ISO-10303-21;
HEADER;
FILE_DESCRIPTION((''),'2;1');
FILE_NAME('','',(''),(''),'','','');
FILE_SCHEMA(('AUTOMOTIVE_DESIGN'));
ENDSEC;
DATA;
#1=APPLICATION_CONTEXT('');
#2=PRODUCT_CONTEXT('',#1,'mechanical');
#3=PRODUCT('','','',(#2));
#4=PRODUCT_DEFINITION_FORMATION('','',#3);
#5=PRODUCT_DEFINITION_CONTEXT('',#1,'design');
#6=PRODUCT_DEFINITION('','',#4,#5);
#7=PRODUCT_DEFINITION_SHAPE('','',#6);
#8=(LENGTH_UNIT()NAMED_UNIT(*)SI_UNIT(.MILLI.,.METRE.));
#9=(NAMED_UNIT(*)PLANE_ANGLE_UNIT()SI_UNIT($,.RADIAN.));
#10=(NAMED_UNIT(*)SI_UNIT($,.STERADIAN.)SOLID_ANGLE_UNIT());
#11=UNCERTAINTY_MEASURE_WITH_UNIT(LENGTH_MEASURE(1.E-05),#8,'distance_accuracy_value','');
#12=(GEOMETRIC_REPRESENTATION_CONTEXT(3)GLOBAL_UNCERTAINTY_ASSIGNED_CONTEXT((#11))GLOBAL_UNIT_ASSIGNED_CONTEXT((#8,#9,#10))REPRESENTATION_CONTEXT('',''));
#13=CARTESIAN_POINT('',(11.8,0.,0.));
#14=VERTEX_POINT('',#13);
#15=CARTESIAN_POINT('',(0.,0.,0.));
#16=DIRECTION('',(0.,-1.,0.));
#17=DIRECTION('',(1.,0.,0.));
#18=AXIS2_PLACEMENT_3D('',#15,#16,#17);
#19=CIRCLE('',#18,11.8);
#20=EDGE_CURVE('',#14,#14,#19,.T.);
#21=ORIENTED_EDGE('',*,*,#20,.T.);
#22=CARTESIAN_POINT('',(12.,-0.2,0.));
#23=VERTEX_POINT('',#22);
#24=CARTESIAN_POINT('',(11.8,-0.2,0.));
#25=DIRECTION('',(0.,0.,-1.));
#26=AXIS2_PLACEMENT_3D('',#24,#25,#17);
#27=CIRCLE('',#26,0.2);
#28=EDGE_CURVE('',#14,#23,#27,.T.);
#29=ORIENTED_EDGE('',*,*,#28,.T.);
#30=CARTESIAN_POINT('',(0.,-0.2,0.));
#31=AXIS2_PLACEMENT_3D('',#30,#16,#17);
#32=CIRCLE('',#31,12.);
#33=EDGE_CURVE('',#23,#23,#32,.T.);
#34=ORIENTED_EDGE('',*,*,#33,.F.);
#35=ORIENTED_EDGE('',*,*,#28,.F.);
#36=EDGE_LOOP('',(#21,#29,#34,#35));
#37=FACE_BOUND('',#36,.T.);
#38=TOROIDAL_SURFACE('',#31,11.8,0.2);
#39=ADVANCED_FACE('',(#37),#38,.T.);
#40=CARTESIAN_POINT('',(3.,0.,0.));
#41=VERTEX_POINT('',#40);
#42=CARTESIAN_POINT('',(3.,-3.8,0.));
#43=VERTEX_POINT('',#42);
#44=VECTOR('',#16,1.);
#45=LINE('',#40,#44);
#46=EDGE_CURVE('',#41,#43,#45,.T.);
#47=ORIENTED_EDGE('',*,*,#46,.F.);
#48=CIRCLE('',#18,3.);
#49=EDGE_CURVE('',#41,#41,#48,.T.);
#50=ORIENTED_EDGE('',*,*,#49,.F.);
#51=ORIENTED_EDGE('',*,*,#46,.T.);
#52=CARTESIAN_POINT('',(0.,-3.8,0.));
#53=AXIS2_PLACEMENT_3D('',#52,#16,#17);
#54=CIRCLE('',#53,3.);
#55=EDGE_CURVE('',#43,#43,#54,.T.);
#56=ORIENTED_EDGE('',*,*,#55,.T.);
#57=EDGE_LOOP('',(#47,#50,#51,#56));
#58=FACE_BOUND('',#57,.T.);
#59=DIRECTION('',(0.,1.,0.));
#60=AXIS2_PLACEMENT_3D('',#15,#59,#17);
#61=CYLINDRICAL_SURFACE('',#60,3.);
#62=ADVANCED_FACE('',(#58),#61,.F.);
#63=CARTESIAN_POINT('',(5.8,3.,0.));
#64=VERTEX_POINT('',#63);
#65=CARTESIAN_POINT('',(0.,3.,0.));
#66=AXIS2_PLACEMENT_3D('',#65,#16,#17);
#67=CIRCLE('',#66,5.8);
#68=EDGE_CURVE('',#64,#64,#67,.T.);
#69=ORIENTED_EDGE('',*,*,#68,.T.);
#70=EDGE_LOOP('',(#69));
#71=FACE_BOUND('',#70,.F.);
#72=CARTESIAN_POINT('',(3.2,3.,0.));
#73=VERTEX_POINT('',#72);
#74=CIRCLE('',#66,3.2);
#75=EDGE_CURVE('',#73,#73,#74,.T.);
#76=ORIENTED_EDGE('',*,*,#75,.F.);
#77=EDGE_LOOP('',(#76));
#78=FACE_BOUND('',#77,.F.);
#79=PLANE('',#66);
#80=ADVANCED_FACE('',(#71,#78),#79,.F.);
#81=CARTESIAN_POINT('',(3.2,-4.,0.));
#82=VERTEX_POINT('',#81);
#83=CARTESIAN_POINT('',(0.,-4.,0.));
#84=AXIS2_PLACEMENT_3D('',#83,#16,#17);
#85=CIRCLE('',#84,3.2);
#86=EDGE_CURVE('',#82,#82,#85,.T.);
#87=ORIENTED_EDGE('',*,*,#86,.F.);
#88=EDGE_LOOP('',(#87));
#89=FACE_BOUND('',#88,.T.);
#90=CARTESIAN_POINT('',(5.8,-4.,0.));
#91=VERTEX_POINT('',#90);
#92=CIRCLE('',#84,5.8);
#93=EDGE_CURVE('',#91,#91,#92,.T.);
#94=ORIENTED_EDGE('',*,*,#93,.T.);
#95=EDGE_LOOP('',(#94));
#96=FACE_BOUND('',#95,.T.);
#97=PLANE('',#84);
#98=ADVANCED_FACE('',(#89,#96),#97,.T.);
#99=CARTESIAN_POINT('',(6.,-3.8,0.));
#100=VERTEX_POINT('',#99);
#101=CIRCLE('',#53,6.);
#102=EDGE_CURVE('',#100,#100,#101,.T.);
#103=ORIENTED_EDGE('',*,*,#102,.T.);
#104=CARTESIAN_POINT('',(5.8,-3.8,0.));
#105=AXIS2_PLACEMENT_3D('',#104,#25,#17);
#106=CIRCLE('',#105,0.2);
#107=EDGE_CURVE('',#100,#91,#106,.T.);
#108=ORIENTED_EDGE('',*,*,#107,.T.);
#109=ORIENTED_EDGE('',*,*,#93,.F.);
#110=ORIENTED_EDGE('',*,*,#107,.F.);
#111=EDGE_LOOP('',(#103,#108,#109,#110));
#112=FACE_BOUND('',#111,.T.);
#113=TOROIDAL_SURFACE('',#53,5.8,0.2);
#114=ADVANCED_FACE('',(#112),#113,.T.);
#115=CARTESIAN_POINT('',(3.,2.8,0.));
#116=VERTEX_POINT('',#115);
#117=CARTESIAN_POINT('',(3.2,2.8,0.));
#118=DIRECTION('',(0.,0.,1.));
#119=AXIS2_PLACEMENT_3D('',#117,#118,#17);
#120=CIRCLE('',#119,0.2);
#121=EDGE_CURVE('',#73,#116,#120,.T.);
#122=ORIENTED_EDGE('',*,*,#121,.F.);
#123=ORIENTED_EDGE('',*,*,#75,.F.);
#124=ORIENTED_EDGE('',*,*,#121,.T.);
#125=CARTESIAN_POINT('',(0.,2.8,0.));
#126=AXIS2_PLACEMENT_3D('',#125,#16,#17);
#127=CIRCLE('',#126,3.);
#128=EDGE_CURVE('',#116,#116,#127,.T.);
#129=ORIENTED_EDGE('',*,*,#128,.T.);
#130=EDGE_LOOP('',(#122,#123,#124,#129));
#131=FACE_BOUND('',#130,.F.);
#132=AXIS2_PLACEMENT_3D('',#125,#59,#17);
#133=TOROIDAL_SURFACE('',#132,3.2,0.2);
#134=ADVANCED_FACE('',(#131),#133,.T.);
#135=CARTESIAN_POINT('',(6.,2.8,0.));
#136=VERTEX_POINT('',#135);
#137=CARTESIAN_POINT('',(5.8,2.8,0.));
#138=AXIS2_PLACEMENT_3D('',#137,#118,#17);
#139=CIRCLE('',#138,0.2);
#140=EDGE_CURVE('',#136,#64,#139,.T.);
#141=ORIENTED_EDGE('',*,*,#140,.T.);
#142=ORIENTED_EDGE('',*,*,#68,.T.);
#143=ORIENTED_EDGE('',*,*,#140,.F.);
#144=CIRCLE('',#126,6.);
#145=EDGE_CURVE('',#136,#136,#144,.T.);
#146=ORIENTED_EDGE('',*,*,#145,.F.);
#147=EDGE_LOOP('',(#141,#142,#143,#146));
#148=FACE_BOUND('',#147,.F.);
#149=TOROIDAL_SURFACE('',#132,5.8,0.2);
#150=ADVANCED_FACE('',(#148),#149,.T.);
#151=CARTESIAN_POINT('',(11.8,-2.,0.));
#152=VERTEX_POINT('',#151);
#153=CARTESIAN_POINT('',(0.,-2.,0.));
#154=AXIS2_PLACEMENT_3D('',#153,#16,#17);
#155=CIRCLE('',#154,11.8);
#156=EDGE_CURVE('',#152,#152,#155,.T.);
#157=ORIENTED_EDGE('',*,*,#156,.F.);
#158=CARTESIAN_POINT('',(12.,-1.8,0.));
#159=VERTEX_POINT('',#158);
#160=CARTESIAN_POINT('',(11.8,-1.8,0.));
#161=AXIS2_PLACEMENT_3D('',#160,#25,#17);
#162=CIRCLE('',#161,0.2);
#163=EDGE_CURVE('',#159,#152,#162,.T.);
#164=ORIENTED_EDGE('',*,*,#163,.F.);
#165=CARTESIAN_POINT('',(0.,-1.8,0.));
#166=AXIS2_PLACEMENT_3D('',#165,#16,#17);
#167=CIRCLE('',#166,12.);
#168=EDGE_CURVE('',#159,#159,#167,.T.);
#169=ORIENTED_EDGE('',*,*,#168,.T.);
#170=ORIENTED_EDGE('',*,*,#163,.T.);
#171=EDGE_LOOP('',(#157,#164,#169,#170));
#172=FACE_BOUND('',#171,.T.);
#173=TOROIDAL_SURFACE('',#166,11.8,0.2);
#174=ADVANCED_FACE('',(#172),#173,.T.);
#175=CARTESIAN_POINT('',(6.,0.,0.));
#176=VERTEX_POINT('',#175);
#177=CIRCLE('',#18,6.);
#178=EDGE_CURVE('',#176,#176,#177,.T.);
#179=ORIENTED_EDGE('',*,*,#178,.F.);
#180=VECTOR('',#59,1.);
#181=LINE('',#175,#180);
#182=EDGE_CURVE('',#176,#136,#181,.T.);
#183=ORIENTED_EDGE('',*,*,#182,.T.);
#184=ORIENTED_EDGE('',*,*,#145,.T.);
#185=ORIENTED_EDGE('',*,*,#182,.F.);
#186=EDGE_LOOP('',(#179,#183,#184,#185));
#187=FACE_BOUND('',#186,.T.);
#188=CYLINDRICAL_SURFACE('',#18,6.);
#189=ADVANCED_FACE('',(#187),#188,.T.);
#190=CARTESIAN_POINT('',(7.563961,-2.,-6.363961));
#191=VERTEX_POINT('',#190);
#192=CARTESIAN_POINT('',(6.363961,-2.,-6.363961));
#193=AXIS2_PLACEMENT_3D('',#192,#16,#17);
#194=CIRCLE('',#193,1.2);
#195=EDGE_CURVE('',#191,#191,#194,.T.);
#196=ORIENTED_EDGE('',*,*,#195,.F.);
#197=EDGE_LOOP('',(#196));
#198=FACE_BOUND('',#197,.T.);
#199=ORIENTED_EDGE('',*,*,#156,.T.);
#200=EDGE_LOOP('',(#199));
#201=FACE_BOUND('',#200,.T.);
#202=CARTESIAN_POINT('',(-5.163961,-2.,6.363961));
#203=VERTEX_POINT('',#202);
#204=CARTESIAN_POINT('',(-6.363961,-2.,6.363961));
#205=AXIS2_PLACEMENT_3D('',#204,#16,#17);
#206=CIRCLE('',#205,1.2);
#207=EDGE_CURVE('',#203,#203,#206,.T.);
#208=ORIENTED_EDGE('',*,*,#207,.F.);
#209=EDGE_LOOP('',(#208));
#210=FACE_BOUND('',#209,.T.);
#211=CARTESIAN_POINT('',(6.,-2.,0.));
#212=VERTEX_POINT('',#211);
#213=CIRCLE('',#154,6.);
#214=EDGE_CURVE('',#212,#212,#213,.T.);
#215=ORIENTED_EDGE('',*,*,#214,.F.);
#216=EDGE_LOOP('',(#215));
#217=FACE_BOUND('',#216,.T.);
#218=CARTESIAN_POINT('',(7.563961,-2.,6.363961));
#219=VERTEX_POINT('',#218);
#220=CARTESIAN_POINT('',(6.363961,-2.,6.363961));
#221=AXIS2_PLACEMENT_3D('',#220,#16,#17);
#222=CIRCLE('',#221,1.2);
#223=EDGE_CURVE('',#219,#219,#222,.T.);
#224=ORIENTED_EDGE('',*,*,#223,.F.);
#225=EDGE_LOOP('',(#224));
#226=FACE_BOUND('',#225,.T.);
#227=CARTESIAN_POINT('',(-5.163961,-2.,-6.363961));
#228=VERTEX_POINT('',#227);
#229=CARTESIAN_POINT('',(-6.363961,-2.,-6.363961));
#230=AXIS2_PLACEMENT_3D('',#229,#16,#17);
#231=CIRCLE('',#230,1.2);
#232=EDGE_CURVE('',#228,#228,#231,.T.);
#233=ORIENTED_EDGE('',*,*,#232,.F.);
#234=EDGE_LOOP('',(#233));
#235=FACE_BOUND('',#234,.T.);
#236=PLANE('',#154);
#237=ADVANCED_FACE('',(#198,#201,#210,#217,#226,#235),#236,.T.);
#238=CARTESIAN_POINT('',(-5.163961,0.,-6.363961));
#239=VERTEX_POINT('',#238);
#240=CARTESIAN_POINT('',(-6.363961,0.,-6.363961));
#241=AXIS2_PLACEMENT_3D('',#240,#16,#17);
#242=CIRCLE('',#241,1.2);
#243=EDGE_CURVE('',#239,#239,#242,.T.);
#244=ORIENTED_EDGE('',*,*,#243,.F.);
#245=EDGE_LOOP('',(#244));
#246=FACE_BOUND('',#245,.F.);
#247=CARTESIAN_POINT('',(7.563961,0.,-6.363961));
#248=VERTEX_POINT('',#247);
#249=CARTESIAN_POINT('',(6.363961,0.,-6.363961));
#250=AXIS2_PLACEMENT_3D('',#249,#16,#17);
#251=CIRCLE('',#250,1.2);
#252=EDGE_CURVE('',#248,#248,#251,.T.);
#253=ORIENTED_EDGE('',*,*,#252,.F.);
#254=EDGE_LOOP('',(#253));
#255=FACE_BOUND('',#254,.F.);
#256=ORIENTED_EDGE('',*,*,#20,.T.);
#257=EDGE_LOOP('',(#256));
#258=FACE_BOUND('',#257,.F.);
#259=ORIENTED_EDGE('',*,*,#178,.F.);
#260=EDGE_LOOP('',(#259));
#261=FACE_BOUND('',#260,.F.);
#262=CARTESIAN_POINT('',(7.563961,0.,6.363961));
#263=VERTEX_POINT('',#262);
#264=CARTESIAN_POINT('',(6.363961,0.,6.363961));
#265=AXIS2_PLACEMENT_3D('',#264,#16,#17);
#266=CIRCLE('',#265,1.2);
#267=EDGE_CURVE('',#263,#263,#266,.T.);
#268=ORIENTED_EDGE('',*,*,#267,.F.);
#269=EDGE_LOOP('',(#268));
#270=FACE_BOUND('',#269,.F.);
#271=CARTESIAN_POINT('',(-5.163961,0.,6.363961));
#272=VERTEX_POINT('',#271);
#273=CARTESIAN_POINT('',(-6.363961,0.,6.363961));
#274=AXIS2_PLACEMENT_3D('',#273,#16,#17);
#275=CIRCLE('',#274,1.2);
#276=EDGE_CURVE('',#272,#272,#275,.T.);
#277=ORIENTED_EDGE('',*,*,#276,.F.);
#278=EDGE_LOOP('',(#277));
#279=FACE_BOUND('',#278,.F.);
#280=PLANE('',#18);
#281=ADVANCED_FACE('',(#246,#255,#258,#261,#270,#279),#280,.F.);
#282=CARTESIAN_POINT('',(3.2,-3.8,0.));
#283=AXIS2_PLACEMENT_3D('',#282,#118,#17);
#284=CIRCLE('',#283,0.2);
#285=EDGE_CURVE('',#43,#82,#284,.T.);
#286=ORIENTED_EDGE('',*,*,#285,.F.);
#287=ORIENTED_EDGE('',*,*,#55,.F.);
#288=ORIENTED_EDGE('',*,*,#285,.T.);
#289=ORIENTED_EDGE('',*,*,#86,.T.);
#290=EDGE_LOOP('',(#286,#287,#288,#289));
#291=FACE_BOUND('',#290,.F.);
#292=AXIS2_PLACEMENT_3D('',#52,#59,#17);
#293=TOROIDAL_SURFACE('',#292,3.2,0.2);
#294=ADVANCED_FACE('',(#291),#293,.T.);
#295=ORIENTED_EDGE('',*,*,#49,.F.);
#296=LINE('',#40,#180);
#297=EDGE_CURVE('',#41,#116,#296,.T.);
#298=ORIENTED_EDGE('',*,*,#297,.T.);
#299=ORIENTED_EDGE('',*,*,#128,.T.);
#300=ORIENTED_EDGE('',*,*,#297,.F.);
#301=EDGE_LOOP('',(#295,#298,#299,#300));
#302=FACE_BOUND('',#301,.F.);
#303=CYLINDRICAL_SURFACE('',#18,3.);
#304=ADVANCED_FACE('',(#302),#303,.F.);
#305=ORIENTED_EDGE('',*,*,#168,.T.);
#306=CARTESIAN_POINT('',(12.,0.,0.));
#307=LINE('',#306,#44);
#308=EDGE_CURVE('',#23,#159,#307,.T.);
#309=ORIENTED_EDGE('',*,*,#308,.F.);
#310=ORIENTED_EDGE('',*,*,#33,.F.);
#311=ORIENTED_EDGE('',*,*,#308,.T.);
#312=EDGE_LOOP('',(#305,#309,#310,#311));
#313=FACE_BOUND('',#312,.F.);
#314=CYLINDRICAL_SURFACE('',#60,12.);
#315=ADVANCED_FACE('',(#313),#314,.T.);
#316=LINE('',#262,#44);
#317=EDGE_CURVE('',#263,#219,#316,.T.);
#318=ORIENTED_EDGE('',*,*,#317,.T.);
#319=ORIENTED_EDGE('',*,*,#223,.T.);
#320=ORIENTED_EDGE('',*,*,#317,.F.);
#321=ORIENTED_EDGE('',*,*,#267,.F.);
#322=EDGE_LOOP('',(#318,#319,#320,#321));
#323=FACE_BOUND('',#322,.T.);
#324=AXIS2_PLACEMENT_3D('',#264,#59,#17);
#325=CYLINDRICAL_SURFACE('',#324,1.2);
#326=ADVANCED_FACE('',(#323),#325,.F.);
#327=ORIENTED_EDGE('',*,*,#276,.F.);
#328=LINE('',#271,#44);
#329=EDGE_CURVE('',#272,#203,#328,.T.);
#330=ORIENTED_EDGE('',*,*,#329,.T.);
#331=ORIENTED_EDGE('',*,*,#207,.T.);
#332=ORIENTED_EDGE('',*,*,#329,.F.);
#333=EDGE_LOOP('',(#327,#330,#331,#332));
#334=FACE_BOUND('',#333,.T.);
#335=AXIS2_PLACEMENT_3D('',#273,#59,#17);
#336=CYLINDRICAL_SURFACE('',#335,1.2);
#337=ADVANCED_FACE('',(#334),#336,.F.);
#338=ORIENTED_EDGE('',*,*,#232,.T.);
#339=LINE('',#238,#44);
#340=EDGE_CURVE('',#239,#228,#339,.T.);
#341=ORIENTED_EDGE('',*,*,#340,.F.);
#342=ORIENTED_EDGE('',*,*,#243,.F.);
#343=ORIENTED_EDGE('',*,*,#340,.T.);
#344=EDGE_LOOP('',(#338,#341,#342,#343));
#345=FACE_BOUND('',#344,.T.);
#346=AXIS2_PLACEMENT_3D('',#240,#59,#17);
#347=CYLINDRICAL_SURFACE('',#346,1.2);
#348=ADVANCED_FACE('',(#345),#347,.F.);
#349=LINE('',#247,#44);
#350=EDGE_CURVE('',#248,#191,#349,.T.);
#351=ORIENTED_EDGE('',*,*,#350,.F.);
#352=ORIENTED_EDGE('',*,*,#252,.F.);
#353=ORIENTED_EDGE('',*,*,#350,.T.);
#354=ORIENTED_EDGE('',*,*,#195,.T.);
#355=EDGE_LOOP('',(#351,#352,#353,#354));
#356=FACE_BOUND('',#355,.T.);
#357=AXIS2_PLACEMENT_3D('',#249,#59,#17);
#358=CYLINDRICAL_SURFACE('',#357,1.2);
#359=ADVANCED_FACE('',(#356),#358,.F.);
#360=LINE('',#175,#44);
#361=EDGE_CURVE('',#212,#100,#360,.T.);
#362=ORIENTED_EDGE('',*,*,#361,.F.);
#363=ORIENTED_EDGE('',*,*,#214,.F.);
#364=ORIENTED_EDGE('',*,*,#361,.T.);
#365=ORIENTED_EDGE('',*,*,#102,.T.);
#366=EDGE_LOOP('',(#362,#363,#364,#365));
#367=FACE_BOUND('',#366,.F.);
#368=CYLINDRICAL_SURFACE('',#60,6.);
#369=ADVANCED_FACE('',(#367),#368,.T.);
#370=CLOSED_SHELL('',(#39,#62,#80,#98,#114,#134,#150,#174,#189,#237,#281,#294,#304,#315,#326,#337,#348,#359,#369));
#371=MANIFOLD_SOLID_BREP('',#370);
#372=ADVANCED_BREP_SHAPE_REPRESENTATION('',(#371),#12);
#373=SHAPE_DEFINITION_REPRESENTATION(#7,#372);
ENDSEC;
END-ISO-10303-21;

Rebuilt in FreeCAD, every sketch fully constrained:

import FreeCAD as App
import Part
import Sketcher
from FreeCAD import Vector
Q = App.Units.Quantity


def edges_at(feature, points):
    """Names of the edges that pass closest to the given points."""
    edges = feature.Shape.Edges
    near = lambda p: min(range(len(edges)), key=lambda i: edges[i].distToShape(Part.Vertex(*p))[0])
    return sorted({f"Edge{near(p) + 1}" for p in points})

doc = App.newDocument("Part")
params = doc.addObject("Spreadsheet::Sheet", "Params")
for row, (alias, value) in enumerate([
    ("sketch1_diameter", "24 mm"),
    ("sketch1_diameter2", "12 mm"),
    ("sketch1_diameter3", "2.4 mm"),
    ("pad1_length", "2 mm"),
    ("sketch2_diameter", "12 mm"),
    ("sketch2_diameter2", "6 mm"),
    ("pad2_length", "4 mm"),
    ("sketch3_diameter", "12 mm"),
    ("sketch3_diameter2", "6 mm"),
    ("pad3_length", "3 mm"),
    ("fillet_radius", "0.2 mm"),
], start=1):
    params.set(f"A{row}", alias)
    params.set(f"B{row}", "=" + value)
    params.setAlias(f"B{row}", alias)

body = doc.addObject("PartDesign::Body", "Body")

# Sketch on XZ plane
sketch1 = body.newObject("Sketcher::SketchObject", "Sketch")
sketch1.AttachmentSupport = (doc.getObject("XZ_Plane"), [""])
sketch1.MapMode = "FlatFace"
sketch1.addGeometry([
    Part.Circle(Vector(0, 0, 0), Vector(0, 0, 1), 12),  # 0
    Part.Circle(Vector(-6.363961, -6.363961, 0), Vector(0, 0, 1), 1.2),  # 1
    Part.Circle(Vector(6.363961, -6.363961, 0), Vector(0, 0, 1), 1.2),  # 2
    Part.Circle(Vector(-6.363961, 6.363961, 0), Vector(0, 0, 1), 1.2),  # 3
    Part.Circle(Vector(0, 0, 0), Vector(0, 0, 1), 6),  # 4
    Part.Circle(Vector(6.363961, 6.363961, 0), Vector(0, 0, 1), 1.2),  # 5
], False)
sketch1.addConstraint([
    Sketcher.Constraint("Coincident", 0, 3, -1, 1),
    Sketcher.Constraint("Coincident", 4, 3, -1, 1),
    Sketcher.Constraint("Equal", 1, 2),
    Sketcher.Constraint("Equal", 2, 3),
    Sketcher.Constraint("Equal", 3, 5),
    Sketcher.Constraint("Symmetric", 2, 3, 3, 3, -1, 1),
    Sketcher.Constraint("Symmetric", 1, 3, 5, 3, -1, 1),
    Sketcher.Constraint("Symmetric", 1, 3, 2, 3, -2),
    Sketcher.Constraint("Diameter", 0, Q("24 mm")),
    Sketcher.Constraint("Diameter", 4, Q("12 mm")),
    Sketcher.Constraint("Diameter", 1, Q("2.4 mm")),
    Sketcher.Constraint("DistanceX", 1, 3, -1, 1, Q("6.363961 mm")),
    Sketcher.Constraint("DistanceY", 1, 3, -1, 1, Q("6.363961 mm")),
])
sketch1.setExpression("Constraints[8]", "Params.sketch1_diameter")
sketch1.setExpression("Constraints[9]", "Params.sketch1_diameter2")
sketch1.setExpression("Constraints[10]", "Params.sketch1_diameter3")
pad1 = body.newObject("PartDesign::Pad", "Pad")
pad1.Profile = sketch1
pad1.setExpression("Length", "Params.pad1_length")

# Sketch on XZ plane
sketch2 = body.newObject("Sketcher::SketchObject", "Sketch001")
sketch2.AttachmentSupport = (doc.getObject("XZ_Plane"), [""])
sketch2.MapMode = "FlatFace"
sketch2.addGeometry([
    Part.Circle(Vector(0, 0, 0), Vector(0, 0, 1), 6),
    Part.Circle(Vector(0, 0, 0), Vector(0, 0, 1), 3),
], False)
sketch2.addConstraint([
    Sketcher.Constraint("Coincident", 0, 3, -1, 1),
    Sketcher.Constraint("Coincident", 1, 3, -1, 1),
    Sketcher.Constraint("Diameter", 0, Q("12 mm")),
    Sketcher.Constraint("Diameter", 1, Q("6 mm")),
])
sketch2.setExpression("Constraints[2]", "Params.sketch2_diameter")
sketch2.setExpression("Constraints[3]", "Params.sketch2_diameter2")
pad2 = body.newObject("PartDesign::Pad", "Pad001")
pad2.Profile = sketch2
pad2.setExpression("Length", "Params.pad2_length")

# Sketch on XZ plane
sketch3 = body.newObject("Sketcher::SketchObject", "Sketch002")
sketch3.AttachmentSupport = (doc.getObject("XZ_Plane"), [""])
sketch3.MapMode = "FlatFace"
sketch3.addGeometry([
    Part.Circle(Vector(0, 0, 0), Vector(0, 0, 1), 6),
    Part.Circle(Vector(0, 0, 0), Vector(0, 0, 1), 3),
], False)
sketch3.addConstraint([
    Sketcher.Constraint("Coincident", 0, 3, -1, 1),
    Sketcher.Constraint("Coincident", 1, 3, -1, 1),
    Sketcher.Constraint("Diameter", 0, Q("12 mm")),
    Sketcher.Constraint("Diameter", 1, Q("6 mm")),
])
sketch3.setExpression("Constraints[2]", "Params.sketch3_diameter")
sketch3.setExpression("Constraints[3]", "Params.sketch3_diameter2")
pad3 = body.newObject("PartDesign::Pad", "Pad002")
pad3.Profile = sketch3
pad3.setExpression("Length", "Params.pad3_length")
pad3.Reversed = True
doc.recompute()

fillet = body.newObject("PartDesign::Fillet", "Fillet")
fillet.Base = (pad3, edges_at(pad3, [
    (-3, -4, 0),
    (-6, -4, 0),
    (-12, -2, 0),
    (-12, 0, 0),
    (-6, 3, 0),
    (-3, 3, 0),
]))
fillet.setExpression("Radius", "Params.fillet_radius")

doc.recompute()
